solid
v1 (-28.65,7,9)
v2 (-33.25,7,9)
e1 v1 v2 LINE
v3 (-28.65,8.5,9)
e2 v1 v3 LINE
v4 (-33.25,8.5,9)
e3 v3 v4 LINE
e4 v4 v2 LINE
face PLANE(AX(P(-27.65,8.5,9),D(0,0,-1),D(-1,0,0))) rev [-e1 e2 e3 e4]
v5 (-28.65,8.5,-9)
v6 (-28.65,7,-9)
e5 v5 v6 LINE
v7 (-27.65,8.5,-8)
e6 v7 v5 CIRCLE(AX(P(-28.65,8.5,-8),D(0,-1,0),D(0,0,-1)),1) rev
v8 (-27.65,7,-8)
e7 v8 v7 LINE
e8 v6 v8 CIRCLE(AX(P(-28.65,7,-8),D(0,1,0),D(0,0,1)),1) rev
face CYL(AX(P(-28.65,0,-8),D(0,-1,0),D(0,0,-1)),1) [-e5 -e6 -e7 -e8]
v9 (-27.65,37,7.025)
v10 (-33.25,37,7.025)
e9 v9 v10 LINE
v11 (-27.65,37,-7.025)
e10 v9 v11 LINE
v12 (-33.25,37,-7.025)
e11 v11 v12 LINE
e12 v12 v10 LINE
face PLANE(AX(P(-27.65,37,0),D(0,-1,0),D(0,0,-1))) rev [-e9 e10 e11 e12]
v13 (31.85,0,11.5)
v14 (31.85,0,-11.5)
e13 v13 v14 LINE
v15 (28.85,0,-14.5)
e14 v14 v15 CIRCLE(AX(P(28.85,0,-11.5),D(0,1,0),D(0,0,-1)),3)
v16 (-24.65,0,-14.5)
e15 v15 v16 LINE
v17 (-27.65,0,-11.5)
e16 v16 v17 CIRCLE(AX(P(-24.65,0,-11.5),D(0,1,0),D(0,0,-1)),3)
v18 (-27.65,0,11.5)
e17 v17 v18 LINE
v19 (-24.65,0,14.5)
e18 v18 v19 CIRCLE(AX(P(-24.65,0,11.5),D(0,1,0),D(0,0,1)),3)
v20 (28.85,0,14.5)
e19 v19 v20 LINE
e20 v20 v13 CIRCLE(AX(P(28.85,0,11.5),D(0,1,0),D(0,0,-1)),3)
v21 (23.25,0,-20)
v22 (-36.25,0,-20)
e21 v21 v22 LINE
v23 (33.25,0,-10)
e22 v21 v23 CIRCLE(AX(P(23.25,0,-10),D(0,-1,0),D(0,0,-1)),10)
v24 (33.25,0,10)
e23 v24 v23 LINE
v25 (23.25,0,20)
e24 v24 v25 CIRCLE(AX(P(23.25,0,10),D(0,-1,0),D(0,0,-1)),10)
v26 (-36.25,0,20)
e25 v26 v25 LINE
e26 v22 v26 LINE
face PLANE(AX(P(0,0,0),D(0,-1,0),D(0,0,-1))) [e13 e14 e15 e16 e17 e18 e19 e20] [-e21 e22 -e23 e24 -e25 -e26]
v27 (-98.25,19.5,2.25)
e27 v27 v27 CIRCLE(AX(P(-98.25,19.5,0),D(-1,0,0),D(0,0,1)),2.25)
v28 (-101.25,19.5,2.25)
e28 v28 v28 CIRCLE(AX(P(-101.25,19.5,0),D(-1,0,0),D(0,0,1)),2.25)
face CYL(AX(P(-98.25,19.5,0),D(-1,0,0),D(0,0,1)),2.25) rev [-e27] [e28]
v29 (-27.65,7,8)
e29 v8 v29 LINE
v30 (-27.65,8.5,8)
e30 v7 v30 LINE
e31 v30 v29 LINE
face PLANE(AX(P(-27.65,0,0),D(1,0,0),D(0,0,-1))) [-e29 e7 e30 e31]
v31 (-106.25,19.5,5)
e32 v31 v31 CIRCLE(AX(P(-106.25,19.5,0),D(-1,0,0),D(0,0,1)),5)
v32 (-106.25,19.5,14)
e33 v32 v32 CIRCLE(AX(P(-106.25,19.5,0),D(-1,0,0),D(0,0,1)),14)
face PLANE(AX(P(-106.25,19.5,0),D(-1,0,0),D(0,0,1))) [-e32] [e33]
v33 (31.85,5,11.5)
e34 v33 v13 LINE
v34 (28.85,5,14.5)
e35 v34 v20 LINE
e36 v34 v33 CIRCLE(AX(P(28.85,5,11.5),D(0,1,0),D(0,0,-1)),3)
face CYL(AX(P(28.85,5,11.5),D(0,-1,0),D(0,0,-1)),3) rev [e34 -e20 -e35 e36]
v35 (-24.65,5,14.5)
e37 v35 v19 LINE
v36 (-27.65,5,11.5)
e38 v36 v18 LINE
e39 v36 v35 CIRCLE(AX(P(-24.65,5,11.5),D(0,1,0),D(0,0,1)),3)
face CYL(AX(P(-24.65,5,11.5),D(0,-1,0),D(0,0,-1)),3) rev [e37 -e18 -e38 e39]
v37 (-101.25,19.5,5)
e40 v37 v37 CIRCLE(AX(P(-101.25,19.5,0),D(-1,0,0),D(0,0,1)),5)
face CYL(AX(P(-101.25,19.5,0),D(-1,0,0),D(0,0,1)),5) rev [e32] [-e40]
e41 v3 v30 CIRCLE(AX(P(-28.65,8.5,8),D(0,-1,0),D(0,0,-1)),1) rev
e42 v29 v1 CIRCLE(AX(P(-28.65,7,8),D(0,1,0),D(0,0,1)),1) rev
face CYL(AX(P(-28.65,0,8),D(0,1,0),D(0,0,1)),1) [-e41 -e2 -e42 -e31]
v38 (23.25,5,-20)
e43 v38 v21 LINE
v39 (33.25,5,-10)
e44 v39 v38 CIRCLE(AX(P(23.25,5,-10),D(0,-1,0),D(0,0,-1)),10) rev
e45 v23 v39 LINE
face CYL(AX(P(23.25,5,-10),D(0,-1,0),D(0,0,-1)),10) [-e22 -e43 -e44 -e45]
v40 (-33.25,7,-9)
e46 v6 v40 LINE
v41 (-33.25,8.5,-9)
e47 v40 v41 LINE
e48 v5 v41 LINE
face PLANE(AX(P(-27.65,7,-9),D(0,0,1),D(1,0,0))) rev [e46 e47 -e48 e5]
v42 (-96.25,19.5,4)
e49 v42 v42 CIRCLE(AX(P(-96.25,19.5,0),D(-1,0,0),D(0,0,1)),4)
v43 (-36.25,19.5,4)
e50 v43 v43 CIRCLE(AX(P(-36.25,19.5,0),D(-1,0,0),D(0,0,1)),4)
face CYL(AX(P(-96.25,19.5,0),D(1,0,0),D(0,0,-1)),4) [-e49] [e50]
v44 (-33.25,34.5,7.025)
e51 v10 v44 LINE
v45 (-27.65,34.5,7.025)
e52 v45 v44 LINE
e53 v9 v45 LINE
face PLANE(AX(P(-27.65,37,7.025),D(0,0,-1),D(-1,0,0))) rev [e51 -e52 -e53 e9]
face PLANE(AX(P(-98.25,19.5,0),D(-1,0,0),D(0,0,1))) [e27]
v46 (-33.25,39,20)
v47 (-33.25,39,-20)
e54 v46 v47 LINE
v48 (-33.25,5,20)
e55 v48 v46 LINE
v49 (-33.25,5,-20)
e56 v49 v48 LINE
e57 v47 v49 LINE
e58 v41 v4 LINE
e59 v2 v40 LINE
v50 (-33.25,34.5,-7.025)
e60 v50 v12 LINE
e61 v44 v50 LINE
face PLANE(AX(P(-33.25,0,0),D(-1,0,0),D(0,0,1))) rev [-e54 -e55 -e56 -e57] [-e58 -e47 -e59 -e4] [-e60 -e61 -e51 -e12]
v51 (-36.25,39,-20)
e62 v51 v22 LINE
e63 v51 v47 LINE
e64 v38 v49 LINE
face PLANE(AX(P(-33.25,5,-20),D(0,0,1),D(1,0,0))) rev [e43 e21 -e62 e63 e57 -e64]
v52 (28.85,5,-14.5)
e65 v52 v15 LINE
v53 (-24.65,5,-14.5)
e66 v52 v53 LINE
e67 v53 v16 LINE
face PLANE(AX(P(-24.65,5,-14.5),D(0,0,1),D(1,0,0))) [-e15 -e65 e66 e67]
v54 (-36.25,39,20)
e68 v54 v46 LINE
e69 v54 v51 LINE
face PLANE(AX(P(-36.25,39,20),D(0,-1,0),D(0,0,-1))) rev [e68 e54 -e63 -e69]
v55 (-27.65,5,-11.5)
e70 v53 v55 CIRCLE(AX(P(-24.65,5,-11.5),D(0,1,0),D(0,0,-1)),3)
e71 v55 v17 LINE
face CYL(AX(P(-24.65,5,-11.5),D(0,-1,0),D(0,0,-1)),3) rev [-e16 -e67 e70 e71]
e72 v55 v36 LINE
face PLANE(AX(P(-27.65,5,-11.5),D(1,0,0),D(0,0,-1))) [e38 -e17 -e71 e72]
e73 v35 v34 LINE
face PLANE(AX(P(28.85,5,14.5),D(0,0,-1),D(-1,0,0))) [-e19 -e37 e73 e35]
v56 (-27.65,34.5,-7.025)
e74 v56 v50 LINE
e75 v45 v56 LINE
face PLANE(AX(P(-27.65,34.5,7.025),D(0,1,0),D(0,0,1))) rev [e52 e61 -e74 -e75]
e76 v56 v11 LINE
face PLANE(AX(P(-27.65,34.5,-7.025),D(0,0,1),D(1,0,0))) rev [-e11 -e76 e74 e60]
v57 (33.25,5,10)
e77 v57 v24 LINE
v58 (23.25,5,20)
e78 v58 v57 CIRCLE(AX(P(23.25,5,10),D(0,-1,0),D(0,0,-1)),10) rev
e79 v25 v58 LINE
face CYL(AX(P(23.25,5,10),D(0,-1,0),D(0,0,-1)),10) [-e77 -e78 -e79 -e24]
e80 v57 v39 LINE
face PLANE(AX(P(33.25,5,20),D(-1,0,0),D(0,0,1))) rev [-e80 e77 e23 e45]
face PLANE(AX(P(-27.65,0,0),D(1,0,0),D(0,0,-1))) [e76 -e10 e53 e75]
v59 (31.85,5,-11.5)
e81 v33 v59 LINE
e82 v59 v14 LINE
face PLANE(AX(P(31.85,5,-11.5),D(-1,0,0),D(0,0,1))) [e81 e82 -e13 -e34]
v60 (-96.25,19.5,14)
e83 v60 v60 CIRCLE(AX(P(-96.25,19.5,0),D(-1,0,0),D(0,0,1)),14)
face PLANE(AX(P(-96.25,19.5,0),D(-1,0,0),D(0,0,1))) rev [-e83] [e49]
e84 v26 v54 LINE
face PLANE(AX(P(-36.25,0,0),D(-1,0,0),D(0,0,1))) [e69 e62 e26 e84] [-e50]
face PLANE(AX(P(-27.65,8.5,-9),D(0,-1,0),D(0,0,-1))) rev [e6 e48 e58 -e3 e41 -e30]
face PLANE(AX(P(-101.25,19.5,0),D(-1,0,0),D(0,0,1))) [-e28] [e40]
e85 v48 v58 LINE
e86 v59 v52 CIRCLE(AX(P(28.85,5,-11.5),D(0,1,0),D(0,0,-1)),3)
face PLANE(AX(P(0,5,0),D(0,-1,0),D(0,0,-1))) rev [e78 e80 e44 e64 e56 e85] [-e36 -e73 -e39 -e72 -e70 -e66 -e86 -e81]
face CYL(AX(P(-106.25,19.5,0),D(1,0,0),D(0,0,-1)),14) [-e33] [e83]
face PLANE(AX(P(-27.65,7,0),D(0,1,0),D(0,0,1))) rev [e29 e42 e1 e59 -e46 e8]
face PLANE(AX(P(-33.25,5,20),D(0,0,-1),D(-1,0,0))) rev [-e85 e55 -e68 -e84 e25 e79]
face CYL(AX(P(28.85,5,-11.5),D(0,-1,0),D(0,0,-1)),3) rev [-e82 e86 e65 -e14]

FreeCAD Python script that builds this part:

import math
import FreeCAD as App
import Part
import Sketcher
Q = App.Units.Quantity


def edges_at(feature, points):
    """Names of the edges that pass closest to the given points."""
    edges = feature.Shape.Edges
    near = lambda p: min(range(len(edges)), key=lambda i: edges[i].distToShape(Part.Vertex(*p))[0])
    return sorted({f"Edge{near(p) + 1}" for p in points})


def add_polygon(sketch, points):
    """Adds a closed chain of lines whose ends are joined by coincident constraints."""
    first, n = sketch.GeometryCount, len(points)
    for a, b in zip(points, points[1:] + points[:1]):
        sketch.addGeometry(Part.LineSegment(App.Vector(*a, 0), App.Vector(*b, 0)), False)
    for i in range(n):
        sketch.addConstraint(Sketcher.Constraint("Coincident", first + i, 2, first + (i + 1) % n, 1))

doc = App.newDocument("Part")
body = doc.addObject("PartDesign::Body", "Body")

sketch1 = doc.addObject("Sketcher::SketchObject", "Sketch")
body.addObject(sketch1)
sketch1.AttachmentSupport = (doc.XZ_Plane, [""])
sketch1.MapMode = "FlatFace"
add_polygon(sketch1, [(-33.2, -20), (-33.2, 20), (33.2, 20), (33.2, -20)])
sketch1.addGeometry(Part.LineSegment(App.Vector(-27.6, 11.5, 0), App.Vector(-27.6, -11.5, 0)), False)
sketch1.addGeometry(Part.ArcOfCircle(Part.Circle(App.Vector(-24.7, -11.5, 0), App.Vector(0, 0, 1), 3), math.radians(180), math.radians(270)), False)
sketch1.addGeometry(Part.LineSegment(App.Vector(-24.6, -14.5, 0), App.Vector(28.9, -14.5, 0)), False)
sketch1.addGeometry(Part.ArcOfCircle(Part.Circle(App.Vector(28.9, -11.5, 0), App.Vector(0, 0, 1), 3), math.radians(-90), math.radians(0)), False)
sketch1.addGeometry(Part.LineSegment(App.Vector(31.9, -11.5, 0), App.Vector(31.9, 11.5, 0)), False)
sketch1.addGeometry(Part.ArcOfCircle(Part.Circle(App.Vector(28.9, 11.5, 0), App.Vector(0, 0, 1), 3), math.radians(0), math.radians(90)), False)
sketch1.addGeometry(Part.LineSegment(App.Vector(28.9, 14.5, 0), App.Vector(-24.6, 14.5, 0)), False)
sketch1.addGeometry(Part.ArcOfCircle(Part.Circle(App.Vector(-24.7, 11.5, 0), App.Vector(0, 0, 1), 3), math.radians(90), math.radians(180)), False)
sketch1.addConstraint([
    Sketcher.Constraint("Tangent", 4, 2, 5, 1),
    Sketcher.Constraint("Tangent", 5, 2, 6, 1),
    Sketcher.Constraint("Tangent", 6, 2, 7, 1),
    Sketcher.Constraint("Tangent", 7, 2, 8, 1),
    Sketcher.Constraint("Tangent", 8, 2, 9, 1),
    Sketcher.Constraint("Tangent", 9, 2, 10, 1),
    Sketcher.Constraint("Tangent", 10, 2, 11, 1),
    Sketcher.Constraint("Tangent", 11, 2, 4, 1),
    Sketcher.Constraint("Vertical", 0),
    Sketcher.Constraint("Horizontal", 1),
    Sketcher.Constraint("Vertical", 2),
    Sketcher.Constraint("Horizontal", 3),
    Sketcher.Constraint("Vertical", 4),
    Sketcher.Constraint("Horizontal", 6),
    Sketcher.Constraint("Vertical", 8),
    Sketcher.Constraint("Horizontal", 10),
    Sketcher.Constraint("Equal", 5, 7),
    Sketcher.Constraint("Equal", 7, 9),
    Sketcher.Constraint("Equal", 9, 11),
    Sketcher.Constraint("Symmetric", 0, 2, 2, 2, -1, 1),
    Sketcher.Constraint("Radius", 5, Q("3 mm")),
    Sketcher.Constraint("DistanceY", 0, 1, 0, 2, Q("40 mm")),
    Sketcher.Constraint("DistanceY", 4, 2, 4, 1, Q("23 mm")),
    Sketcher.Constraint("DistanceX", 1, 1, 1, 2, Q("66.5 mm")),
    Sketcher.Constraint("DistanceX", 6, 1, 6, 2, Q("53.5 mm")),
    Sketcher.Constraint("DistanceY", 5, 3, -1, 1, Q("11.5 mm")),
    Sketcher.Constraint("DistanceX", 0, 2, 11, 3, Q("8.6 mm")),
])
pad1 = doc.addObject("PartDesign::Pad", "Pad")
body.addObject(pad1)
pad1.Profile = sketch1
pad1.Length = 5
pad1.Reversed = True

sketch2 = doc.addObject("Sketcher::SketchObject", "Sketch001")
body.addObject(sketch2)
sketch2.AttachmentSupport = (doc.YZ_Plane, [""])
sketch2.MapMode = "FlatFace"
sketch2.AttachmentOffset = App.Placement(App.Vector(0, 0, -33.25), App.Rotation())
add_polygon(sketch2, [(39, -20), (0, -20), (0, 20), (39, 20)])
sketch2.addConstraint([
    Sketcher.Constraint("Horizontal", 0),
    Sketcher.Constraint("Vertical", 1),
    Sketcher.Constraint("Horizontal", 2),
    Sketcher.Constraint("Vertical", 3),
    Sketcher.Constraint("Symmetric", 0, 2, 1, 2, -1, 1),
    Sketcher.Constraint("DistanceX", 0, 2, 0, 1, Q("39 mm")),
    Sketcher.Constraint("DistanceY", 1, 1, 1, 2, Q("40 mm")),
])
pad2 = doc.addObject("PartDesign::Pad", "Pad001")
body.addObject(pad2)
pad2.Profile = sketch2
pad2.Length = 3
pad2.Reversed = True

sketch3 = doc.addObject("Sketcher::SketchObject", "Sketch002")
body.addObject(sketch3)
sketch3.AttachmentSupport = (doc.YZ_Plane, [""])
sketch3.MapMode = "FlatFace"
sketch3.AttachmentOffset = App.Placement(App.Vector(0, 0, -33.25), App.Rotation())
add_polygon(sketch3, [(37, 7), (34.5, 7), (34.5, -7), (37, -7)])
add_polygon(sketch3, [(8.5, 9), (7, 9), (7, -9), (8.5, -9)])
sketch3.addConstraint([
    Sketcher.Constraint("Horizontal", 0),
    Sketcher.Constraint("Vertical", 1),
    Sketcher.Constraint("Horizontal", 2),
    Sketcher.Constraint("Vertical", 3),
    Sketcher.Constraint("Horizontal", 4),
    Sketcher.Constraint("Vertical", 5),
    Sketcher.Constraint("Horizontal", 6),
    Sketcher.Constraint("Vertical", 7),
    Sketcher.Constraint("DistanceY", 5, 2, 5, 1, Q("18 mm")),
    Sketcher.Constraint("DistanceX", 0, 2, 0, 1, Q("2.5 mm")),
    Sketcher.Constraint("DistanceX", 4, 2, 4, 1, Q("1.5 mm")),
    Sketcher.Constraint("DistanceX", -1, 1, 2, 2, Q("37 mm")),
    Sketcher.Constraint("DistanceX", -1, 1, 4, 2, Q("7 mm")),
    Sketcher.Constraint("DistanceY", -1, 1, 4, 2, Q("9 mm")),
    Sketcher.Constraint("DistanceY", 1, 2, 1, 1, Q("14.05 mm")),
    Sketcher.Constraint("DistanceY", -1, 1, 0, 2, Q("7.025 mm")),
])
pad3 = doc.addObject("PartDesign::Pad", "Pad002")
body.addObject(pad3)
pad3.Profile = sketch3
pad3.Length = 5.6
doc.recompute()

fillet = doc.addObject("PartDesign::Fillet", "Fillet")
body.addObject(fillet)
fillet.Base = (pad3, edges_at(pad3, [(-27.65, 7.75, -9), (-27.65, 7.75, 9)]))
fillet.Radius = 1

sketch4 = doc.addObject("Sketcher::SketchObject", "Sketch003")
body.addObject(sketch4)
sketch4.AttachmentSupport = (doc.YZ_Plane, [""])
sketch4.MapMode = "FlatFace"
sketch4.AttachmentOffset = App.Placement(App.Vector(0, 0, -36.25), App.Rotation())
sketch4.addGeometry(Part.Circle(App.Vector(19.5, 0, 0), App.Vector(0, 0, 1), 4), False)
sketch4.addConstraint([
    Sketcher.Constraint("PointOnObject", 0, 3, -1),
    Sketcher.Constraint("Diameter", 0, Q("8 mm")),
    Sketcher.Constraint("DistanceX", -1, 1, 0, 3, Q("19.5 mm")),
])
pad4 = doc.addObject("PartDesign::Pad", "Pad003")
body.addObject(pad4)
pad4.Profile = sketch4
pad4.Length = 60
pad4.Reversed = True
doc.recompute()

fillet2 = doc.addObject("PartDesign::Fillet", "Fillet001")
body.addObject(fillet2)
fillet2.Base = (pad4, edges_at(pad4, [(33.25, 2.5, 20), (33.25, 2.5, -20)]))
fillet2.Radius = 10

sketch5 = doc.addObject("Sketcher::SketchObject", "Sketch004")
body.addObject(sketch5)
sketch5.AttachmentSupport = (doc.YZ_Plane, [""])
sketch5.MapMode = "FlatFace"
sketch5.AttachmentOffset = App.Placement(App.Vector(0, 0, -96.25), App.Rotation())
sketch5.addGeometry(Part.Circle(App.Vector(20, 0, 0), App.Vector(0, 0, 1), 14), False)
sketch5.addConstraint([
    Sketcher.Constraint("PointOnObject", 0, 3, -1),
    Sketcher.Constraint("Diameter", 0, Q("28 mm")),
    Sketcher.Constraint("DistanceX", -1, 1, 0, 3, Q("19.5 mm")),
])
pad5 = doc.addObject("PartDesign::Pad", "Pad004")
body.addObject(pad5)
pad5.Profile = sketch5
pad5.Length = 10
pad5.Reversed = True

sketch6 = doc.addObject("Sketcher::SketchObject", "Sketch005")
body.addObject(sketch6)
sketch6.AttachmentSupport = (doc.YZ_Plane, [""])
sketch6.MapMode = "FlatFace"
sketch6.AttachmentOffset = App.Placement(App.Vector(0, 0, -106.25), App.Rotation())
sketch6.addGeometry(Part.Circle(App.Vector(20, 0, 0), App.Vector(0, 0, 1), 5), False)
sketch6.addConstraint([
    Sketcher.Constraint("PointOnObject", 0, 3, -1),
    Sketcher.Constraint("Diameter", 0, Q("10 mm")),
    Sketcher.Constraint("DistanceX", -1, 1, 0, 3, Q("19.5 mm")),
])
pocket1 = doc.addObject("PartDesign::Pocket", "Pocket")
body.addObject(pocket1)
pocket1.Profile = sketch6
pocket1.Length = 5
pocket1.Reversed = True

sketch7 = doc.addObject("Sketcher::SketchObject", "Sketch006")
body.addObject(sketch7)
sketch7.AttachmentSupport = (doc.YZ_Plane, [""])
sketch7.MapMode = "FlatFace"
sketch7.AttachmentOffset = App.Placement(App.Vector(0, 0, -101.25), App.Rotation())
sketch7.addGeometry(Part.Circle(App.Vector(19.5, 0, 0), App.Vector(0, 0, 1), 2.2), False)
sketch7.addConstraint([
    Sketcher.Constraint("PointOnObject", 0, 3, -1),
    Sketcher.Constraint("Diameter", 0, Q("4.5 mm")),
    Sketcher.Constraint("DistanceX", -1, 1, 0, 3, Q("19.5 mm")),
])
pocket2 = doc.addObject("PartDesign::Pocket", "Pocket001")
body.addObject(pocket2)
pocket2.Profile = sketch7
pocket2.Length = 3
pocket2.Reversed = True

doc.recompute()
